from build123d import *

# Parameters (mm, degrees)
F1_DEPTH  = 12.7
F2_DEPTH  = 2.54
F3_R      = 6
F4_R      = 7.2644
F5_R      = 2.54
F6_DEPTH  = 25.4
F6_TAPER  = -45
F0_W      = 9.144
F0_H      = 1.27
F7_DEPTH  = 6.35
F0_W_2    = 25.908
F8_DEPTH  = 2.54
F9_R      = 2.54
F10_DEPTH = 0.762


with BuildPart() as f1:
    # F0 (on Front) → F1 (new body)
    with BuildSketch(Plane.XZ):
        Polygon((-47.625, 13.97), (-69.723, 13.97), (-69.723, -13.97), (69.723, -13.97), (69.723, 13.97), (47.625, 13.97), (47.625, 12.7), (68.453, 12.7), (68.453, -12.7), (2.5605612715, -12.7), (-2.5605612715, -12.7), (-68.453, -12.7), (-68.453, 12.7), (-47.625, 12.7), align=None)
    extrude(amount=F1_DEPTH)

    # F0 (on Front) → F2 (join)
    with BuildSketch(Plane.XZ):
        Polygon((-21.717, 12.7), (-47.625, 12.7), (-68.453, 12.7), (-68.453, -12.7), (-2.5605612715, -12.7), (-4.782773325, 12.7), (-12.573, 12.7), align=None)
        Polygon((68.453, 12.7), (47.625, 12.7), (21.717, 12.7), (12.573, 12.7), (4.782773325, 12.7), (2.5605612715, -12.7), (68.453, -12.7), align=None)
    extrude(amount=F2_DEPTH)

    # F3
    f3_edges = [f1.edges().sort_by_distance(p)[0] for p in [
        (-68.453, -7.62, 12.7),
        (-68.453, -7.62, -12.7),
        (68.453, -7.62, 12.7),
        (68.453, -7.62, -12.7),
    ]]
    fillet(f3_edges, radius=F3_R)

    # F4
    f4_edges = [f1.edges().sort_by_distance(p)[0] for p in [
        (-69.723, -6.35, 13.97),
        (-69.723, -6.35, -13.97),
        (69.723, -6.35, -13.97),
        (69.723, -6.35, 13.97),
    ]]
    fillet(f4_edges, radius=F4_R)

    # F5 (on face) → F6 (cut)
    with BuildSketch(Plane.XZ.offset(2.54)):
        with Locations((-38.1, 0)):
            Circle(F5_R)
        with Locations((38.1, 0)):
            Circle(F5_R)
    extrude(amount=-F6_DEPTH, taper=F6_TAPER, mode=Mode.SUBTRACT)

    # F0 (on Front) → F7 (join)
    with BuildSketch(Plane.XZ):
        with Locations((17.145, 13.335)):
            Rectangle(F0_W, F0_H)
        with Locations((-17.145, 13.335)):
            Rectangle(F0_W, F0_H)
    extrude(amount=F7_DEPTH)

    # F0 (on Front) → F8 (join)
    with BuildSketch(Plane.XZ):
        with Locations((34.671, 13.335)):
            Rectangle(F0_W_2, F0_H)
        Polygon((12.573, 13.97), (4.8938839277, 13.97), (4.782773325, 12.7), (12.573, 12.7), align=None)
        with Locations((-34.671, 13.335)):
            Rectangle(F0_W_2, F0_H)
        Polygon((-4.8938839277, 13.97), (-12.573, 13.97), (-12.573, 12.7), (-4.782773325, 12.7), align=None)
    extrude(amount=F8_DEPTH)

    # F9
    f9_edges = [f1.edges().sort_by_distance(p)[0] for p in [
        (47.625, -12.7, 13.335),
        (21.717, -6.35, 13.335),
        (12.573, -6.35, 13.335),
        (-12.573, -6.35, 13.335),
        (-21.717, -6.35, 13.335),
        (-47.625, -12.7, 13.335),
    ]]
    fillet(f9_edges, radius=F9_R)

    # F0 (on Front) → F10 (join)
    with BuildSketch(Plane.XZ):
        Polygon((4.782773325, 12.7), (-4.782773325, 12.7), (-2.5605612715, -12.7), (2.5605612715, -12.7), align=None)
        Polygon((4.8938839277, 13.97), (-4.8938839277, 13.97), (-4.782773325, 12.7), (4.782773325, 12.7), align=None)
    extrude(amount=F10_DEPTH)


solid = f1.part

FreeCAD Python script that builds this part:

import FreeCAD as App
import Part
import Sketcher

V = App.Vector
Q = App.Units.Quantity


def edges_at(feature, points):
    """Names of the edges that pass closest to the given points."""
    edges = feature.Shape.Edges
    near = lambda p: min(range(len(edges)), key=lambda i: edges[i].distToShape(Part.Vertex(*p))[0])
    return sorted({f"Edge{near(p) + 1}" for p in points})


def add_polygon(sketch, points):
    """Adds a closed chain of lines whose ends are joined by coincident constraints."""
    first, n = sketch.GeometryCount, len(points)
    for a, b in zip(points, points[1:] + points[:1]):
        sketch.addGeometry(Part.LineSegment(App.Vector(*a, 0), App.Vector(*b, 0)), False)
    for i in range(n):
        sketch.addConstraint(Sketcher.Constraint("Coincident", first + i, 2, first + (i + 1) % n, 1))

doc = App.newDocument("Part")
body = doc.addObject("PartDesign::Body", "Body")

# Sketch on XZ plane
sketch1 = body.newObject("Sketcher::SketchObject", "Sketch")
sketch1.AttachmentSupport = (doc.getObject("XZ_Plane"), [""])
sketch1.MapMode = "FlatFace"
add_polygon(sketch1, [(-47.6, 14), (-69.7, 14), (-69.7, -14), (69.7, -14), (69.7, 14), (47.6, 14), (47.6, 12.7), (68.5, 12.7), (68.5, -12.7), (-68.5, -12.7), (-68.5, 12.7), (-47.6, 12.7)])  # lines 0-11
sketch1.addConstraint([
    Sketcher.Constraint("Horizontal", 0),
    Sketcher.Constraint("Vertical", 1),
    Sketcher.Constraint("Horizontal", 2),
    Sketcher.Constraint("Vertical", 3),
    Sketcher.Constraint("Horizontal", 4),
    Sketcher.Constraint("Vertical", 5),
    Sketcher.Constraint("Horizontal", 6),
    Sketcher.Constraint("Vertical", 7),
    Sketcher.Constraint("Horizontal", 8),
    Sketcher.Constraint("Vertical", 9),
    Sketcher.Constraint("Horizontal", 10),
    Sketcher.Constraint("Vertical", 11),
    Sketcher.Constraint("Symmetric", 0, 2, 2, 2, -1, 1),
    Sketcher.Constraint("Symmetric", 6, 2, 8, 2, -1, 1),
    Sketcher.Constraint("Symmetric", 5, 2, 10, 2, -2),
    Sketcher.Constraint("Horizontal", 0, 2, 3, 2),
    Sketcher.Constraint("DistanceY", 7, 2, 7, 1, Q("1 in")),
    Sketcher.Constraint("DistanceY", 1, 2, 1, 1, Q("1.1 in")),
    Sketcher.Constraint("DistanceX", 0, 2, 0, 1, Q("0.87 in")),
    Sketcher.Constraint("DistanceX", 2, 1, 2, 2, Q("5.49 in")),
    Sketcher.Constraint("DistanceX", 6, 1, 6, 2, Q("0.82 in")),
])
pad1 = body.newObject("PartDesign::Pad", "Pad")
pad1.Profile = sketch1
pad1.Length = Q("0.5 in")

# Sketch on XZ plane
sketch2 = body.newObject("Sketcher::SketchObject", "Sketch001")
sketch2.AttachmentSupport = (doc.getObject("XZ_Plane"), [""])
sketch2.MapMode = "FlatFace"
add_polygon(sketch2, [(-68, 13), (-68, -13), (-3, -13), (-5, 13)])  # lines 0-3
add_polygon(sketch2, [(68, 13), (5, 13), (3, -13), (68, -13)])  # lines 4-7
sketch2.addConstraint([
    Sketcher.Constraint("Vertical", 0),
    Sketcher.Constraint("Horizontal", 1),
    Sketcher.Constraint("Horizontal", 3),
    Sketcher.Constraint("Horizontal", 4),
    Sketcher.Constraint("Horizontal", 6),
    Sketcher.Constraint("Vertical", 7),
    Sketcher.Constraint("Symmetric", 3, 2, 6, 2, -1, 1),
    Sketcher.Constraint("Symmetric", 2, 2, 4, 2, -2),
    Sketcher.Constraint("Symmetric", 1, 2, 5, 2, -2),
    Sketcher.Constraint("DistanceY", 0, 2, 0, 1, Q("1 in")),
    Sketcher.Constraint("Angle", 2, Q("95 deg")),
    Sketcher.Constraint("DistanceX", 0, 2, 6, 2, Q("5.39 in")),
    Sketcher.Constraint("DistanceX", 1, 1, 1, 2, 65.892439),
])
pad2 = body.newObject("PartDesign::Pad", "Pad001")
pad2.Profile = sketch2
pad2.Length = Q("0.1 in")
doc.recompute()

fillet = body.newObject("PartDesign::Fillet", "Fillet")
fillet.Base = (pad2, edges_at(pad2, [
    (-68.453, -7.62, 12.7),
    (-68.453, -7.62, -12.7),
    (68.453, -7.62, 12.7),
    (68.453, -7.62, -12.7),
]))
fillet.Radius = 6
doc.recompute()

fillet2 = body.newObject("PartDesign::Fillet", "Fillet001")
fillet2.Base = (fillet, edges_at(fillet, [
    (-69.723, -6.35, 13.97),
    (-69.723, -6.35, -13.97),
    (69.723, -6.35, -13.97),
    (69.723, -6.35, 13.97),
]))
fillet2.Radius = Q("0.286 in")

# Sketch on XZ plane
sketch3 = body.newObject("Sketcher::SketchObject", "Sketch002")
sketch3.AttachmentSupport = (doc.getObject("XZ_Plane"), [""])
sketch3.MapMode = "FlatFace"
sketch3.AttachmentOffset = App.Placement(V(0, 0, 0.1 * 25.4), App.Rotation())
sketch3.addGeometry([
    Part.Circle(V(-38.1, 0, 0), V(0, 0, 1), 2.5),
    Part.Circle(V(38.1, 0, 0), V(0, 0, 1), 2.5),
], False)
sketch3.addConstraint([
    Sketcher.Constraint("Equal", 0, 1),
    Sketcher.Constraint("Symmetric", 0, 3, 1, 3, -1, 1),
    Sketcher.Constraint("PointOnObject", 0, 3, -1),
    Sketcher.Constraint("Diameter", 0, Q("0.2 in")),
    Sketcher.Constraint("DistanceX", 0, 3, 1, 3, Q("3 in")),
])
pocket1 = body.newObject("PartDesign::Pocket", "Pocket")
pocket1.Profile = sketch3
pocket1.Length = Q("1 in")
pocket1.TaperAngle = 45

# Sketch on XZ plane
sketch4 = body.newObject("Sketcher::SketchObject", "Sketch003")
sketch4.AttachmentSupport = (doc.getObject("XZ_Plane"), [""])
sketch4.MapMode = "FlatFace"
add_polygon(sketch4, [(12.6, 14), (12.6, 12.7), (21.7, 12.7), (21.7, 14)])  # lines 0-3
add_polygon(sketch4, [(-21.7, 14), (-21.7, 12.7), (-12.6, 12.7), (-12.6, 14)])  # lines 4-7
sketch4.addConstraint([
    Sketcher.Constraint("Vertical", 0),
    Sketcher.Constraint("Horizontal", 1),
    Sketcher.Constraint("Vertical", 2),
    Sketcher.Constraint("Horizontal", 3),
    Sketcher.Constraint("Vertical", 4),
    Sketcher.Constraint("Horizontal", 5),
    Sketcher.Constraint("Vertical", 6),
    Sketcher.Constraint("Horizontal", 7),
    Sketcher.Constraint("Symmetric", 1, 2, 4, 2, -2),
    Sketcher.Constraint("Symmetric", 3, 2, 6, 2, -2),
    Sketcher.Constraint("DistanceX", 1, 1, 1, 2, Q("0.36 in")),
    Sketcher.Constraint("DistanceY", 0, 2, 0, 1, Q("0.05 in")),
    Sketcher.Constraint("DistanceY", -1, 1, 0, 2, Q("0.5 in")),
    Sketcher.Constraint("DistanceX", 4, 2, 0, 2, Q("1.35 in")),
])
pad3 = body.newObject("PartDesign::Pad", "Pad002")
pad3.Profile = sketch4
pad3.Length = Q("0.25 in")

# Sketch on XZ plane
sketch5 = body.newObject("Sketcher::SketchObject", "Sketch004")
sketch5.AttachmentSupport = (doc.getObject("XZ_Plane"), [""])
sketch5.MapMode = "FlatFace"
add_polygon(sketch5, [(21.7, 14), (21.7, 12.7), (47.6, 12.7), (47.6, 14)])  # lines 0-3
add_polygon(sketch5, [(12.6, 14), (4.9, 14), (4.8, 12.7), (12.6, 12.7)])  # lines 4-7
add_polygon(sketch5, [(-47.6, 14), (-47.6, 12.7), (-21.7, 12.7), (-21.7, 14)])  # lines 8-11
add_polygon(sketch5, [(-4.9, 14), (-12.6, 14), (-12.6, 12.7), (-4.8, 12.7)])  # lines 12-15
sketch5.addConstraint([
    Sketcher.Constraint("Vertical", 0),
    Sketcher.Constraint("Horizontal", 1),
    Sketcher.Constraint("Vertical", 2),
    Sketcher.Constraint("Horizontal", 3),
    Sketcher.Constraint("Horizontal", 4),
    Sketcher.Constraint("Horizontal", 6),
    Sketcher.Constraint("Vertical", 7),
    Sketcher.Constraint("Vertical", 8),
    Sketcher.Constraint("Horizontal", 9),
    Sketcher.Constraint("Vertical", 10),
    Sketcher.Constraint("Horizontal", 11),
    Sketcher.Constraint("Horizontal", 12),
    Sketcher.Constraint("Vertical", 13),
    Sketcher.Constraint("Horizontal", 14),
    Sketcher.Constraint("Symmetric", 1, 2, 8, 2, -2),
    Sketcher.Constraint("Symmetric", 3, 2, 10, 2, -2),
    Sketcher.Constraint("Symmetric", 7, 2, 12, 2, -2),
    Sketcher.Constraint("Symmetric", 5, 2, 14, 2, -2),
    Sketcher.Constraint("Horizontal", 3, 2, 4, 2),
    Sketcher.Constraint("Horizontal", 1, 2, 5, 2),
    Sketcher.Constraint("Equal", 4, 12),
    Sketcher.Constraint("Angle", 5, Q("-95 deg")),
    Sketcher.Constraint("DistanceX", 1, 1, 1, 2, Q("1.02 in")),
    Sketcher.Constraint("DistanceY", 0, 2, 0, 1, Q("0.05 in")),
    Sketcher.Constraint("DistanceY", -1, 1, 0, 2, Q("0.5 in")),
    Sketcher.Constraint("DistanceX", 6, 2, 0, 2, Q("0.36 in")),
    Sketcher.Constraint("DistanceX", 8, 2, 6, 2, Q("2.37 in")),
    Sketcher.Constraint("DistanceX", 4, 2, 4, 1, 7.679116),
])
pad4 = body.newObject("PartDesign::Pad", "Pad003")
pad4.Profile = sketch5
pad4.Length = Q("0.1 in")
doc.recompute()

fillet3 = body.newObject("PartDesign::Fillet", "Fillet002")
fillet3.Base = (pad4, edges_at(pad4, [
    (47.625, -12.7, 13.335),
    (21.717, -6.35, 13.335),
    (12.573, -6.35, 13.335),
    (-12.573, -6.35, 13.335),
    (-21.717, -6.35, 13.335),
    (-47.625, -12.7, 13.335),
]))
fillet3.Radius = Q("0.1 in")

# Sketch on XZ plane
sketch6 = body.newObject("Sketcher::SketchObject", "Sketch005")
sketch6.AttachmentSupport = (doc.getObject("XZ_Plane"), [""])
sketch6.MapMode = "FlatFace"
add_polygon(sketch6, [(-4.8, 12.7), (-2.6, -12.7), (2.6, -12.7), (4.8, 12.7), (4.9, 14), (-4.9, 14)])  # lines 0-5
sketch6.addConstraint([
    Sketcher.Constraint("Horizontal", 1),
    Sketcher.Constraint("Horizontal", 4),
    Sketcher.Constraint("Symmetric", 2, 2, 5, 2, -2),
    Sketcher.Constraint("Parallel", 2, 3),
    Sketcher.Constraint("Parallel", 0, 5),
    Sketcher.Constraint("Equal", 0, 2),
    Sketcher.Constraint("Angle", 0, Q("-85 deg")),
    Sketcher.Constraint("DistanceY", 1, 2, 2, 2, Q("1 in")),
    Sketcher.Constraint("DistanceY", 0, 2, -1, 1, Q("0.5 in")),
    Sketcher.Constraint("DistanceY", -1, 1, 3, 2, Q("0.55 in")),
    Sketcher.Constraint("DistanceX", 1, 1, 1, 2, 5.121123),
])
pad5 = body.newObject("PartDesign::Pad", "Pad004")
pad5.Profile = sketch6
pad5.Length = Q("0.03 in")

doc.recompute()
